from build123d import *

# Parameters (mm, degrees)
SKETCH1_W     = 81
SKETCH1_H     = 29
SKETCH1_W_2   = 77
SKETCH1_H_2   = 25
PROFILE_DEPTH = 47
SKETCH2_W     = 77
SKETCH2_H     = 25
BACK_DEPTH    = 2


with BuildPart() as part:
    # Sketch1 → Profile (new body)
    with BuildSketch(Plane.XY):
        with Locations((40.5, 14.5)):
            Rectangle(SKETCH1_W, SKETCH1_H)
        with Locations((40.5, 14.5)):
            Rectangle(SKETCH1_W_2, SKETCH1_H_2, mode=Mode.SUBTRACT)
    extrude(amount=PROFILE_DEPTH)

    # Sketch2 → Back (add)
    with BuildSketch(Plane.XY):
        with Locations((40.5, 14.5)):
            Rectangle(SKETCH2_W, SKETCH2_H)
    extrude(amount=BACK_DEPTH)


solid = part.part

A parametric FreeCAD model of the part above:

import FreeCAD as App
import Part
import Sketcher
from FreeCAD import Vector
Q = App.Units.Quantity


def add_polygon(sketch, points):
    """Adds a closed chain of lines whose ends are joined by coincident constraints."""
    first, n = sketch.GeometryCount, len(points)
    for a, b in zip(points, points[1:] + points[:1]):
        sketch.addGeometry(Part.LineSegment(App.Vector(*a, 0), App.Vector(*b, 0)), False)
    for i in range(n):
        sketch.addConstraint(Sketcher.Constraint("Coincident", first + i, 2, first + (i + 1) % n, 1))

doc = App.newDocument("Part")
body = doc.addObject("PartDesign::Body", "Body")

sketch1 = body.newObject("Sketcher::SketchObject", "Sketch")
sketch1.AttachmentSupport = (doc.getObject("XY_Plane"), [""])
sketch1.MapMode = "FlatFace"
add_polygon(sketch1, [(0, 29), (0, 0), (81, 0), (81, 29)])
add_polygon(sketch1, [(79, 2), (2, 2), (2, 27), (79, 27)])
sketch1.addConstraint([
    Sketcher.Constraint("Vertical", 0),
    Sketcher.Constraint("Horizontal", 1),
    Sketcher.Constraint("Vertical", 2),
    Sketcher.Constraint("Horizontal", 3),
    Sketcher.Constraint("Horizontal", 4),
    Sketcher.Constraint("Vertical", 5),
    Sketcher.Constraint("Horizontal", 6),
    Sketcher.Constraint("Vertical", 7),
    Sketcher.Constraint("Coincident", 0, 2, -1, 1),
    Sketcher.Constraint("DistanceX", 1, 1, 1, 2, Q("81 mm")),
    Sketcher.Constraint("DistanceX", 4, 2, 4, 1, Q("77 mm")),
    Sketcher.Constraint("DistanceY", 0, 2, 0, 1, Q("29 mm")),
    Sketcher.Constraint("DistanceY", 5, 1, 5, 2, Q("25 mm")),
    Sketcher.Constraint("DistanceX", -1, 1, 4, 2, Q("2 mm")),
    Sketcher.Constraint("DistanceY", -1, 1, 4, 2, Q("2 mm")),
])
pad1 = body.newObject("PartDesign::Pad", "Pad")
pad1.Profile = sketch1
pad1.Length = 47

sketch2 = body.newObject("Sketcher::SketchObject", "Sketch001")
sketch2.AttachmentSupport = (doc.getObject("XY_Plane"), [""])
sketch2.MapMode = "FlatFace"
add_polygon(sketch2, [(2, 27), (2, 2), (79, 2), (79, 27)])
sketch2.addConstraint([
    Sketcher.Constraint("Vertical", 0),
    Sketcher.Constraint("Horizontal", 1),
    Sketcher.Constraint("Vertical", 2),
    Sketcher.Constraint("Horizontal", 3),
    Sketcher.Constraint("DistanceX", 1, 1, 1, 2, Q("77 mm")),
    Sketcher.Constraint("DistanceY", 0, 2, 0, 1, Q("25 mm")),
    Sketcher.Constraint("DistanceX", -1, 1, 0, 2, Q("2 mm")),
    Sketcher.Constraint("DistanceY", -1, 1, 0, 2, Q("2 mm")),
])
pad2 = body.newObject("PartDesign::Pad", "Pad001")
pad2.Profile = sketch2
pad2.Length = 2

doc.recompute()
